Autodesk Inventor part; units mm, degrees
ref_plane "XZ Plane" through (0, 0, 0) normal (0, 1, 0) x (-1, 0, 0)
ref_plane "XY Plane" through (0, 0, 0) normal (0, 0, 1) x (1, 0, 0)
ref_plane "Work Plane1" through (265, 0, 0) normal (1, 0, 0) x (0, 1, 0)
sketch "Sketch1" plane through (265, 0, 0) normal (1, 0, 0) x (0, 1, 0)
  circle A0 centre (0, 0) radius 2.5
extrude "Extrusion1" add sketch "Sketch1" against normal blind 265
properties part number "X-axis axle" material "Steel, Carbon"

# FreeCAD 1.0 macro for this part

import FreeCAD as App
import Part
import Sketcher
from FreeCAD import Vector

doc = App.newDocument("Part")
body = doc.addObject("PartDesign::Body", "Body")

sketch1 = body.newObject("Sketcher::SketchObject", "Sketch")
sketch1.AttachmentSupport = (doc.getObject("YZ_Plane"), [""])
sketch1.MapMode = "FlatFace"
sketch1.AttachmentOffset = App.Placement(Vector(0, 0, 265), App.Rotation())
sketch1.addGeometry(Part.Circle(Vector(0, 0, 0), Vector(0, 0, 1), 2.5), False)
sketch1.addConstraint([
    Sketcher.Constraint("Coincident", 0, 3, -1, 1),
    Sketcher.Constraint("Diameter", 0, 5.0),
])
pad1 = body.newObject("PartDesign::Pad", "Pad")
pad1.Profile = sketch1
pad1.Length = 265
pad1.Reversed = True

doc.recompute()
